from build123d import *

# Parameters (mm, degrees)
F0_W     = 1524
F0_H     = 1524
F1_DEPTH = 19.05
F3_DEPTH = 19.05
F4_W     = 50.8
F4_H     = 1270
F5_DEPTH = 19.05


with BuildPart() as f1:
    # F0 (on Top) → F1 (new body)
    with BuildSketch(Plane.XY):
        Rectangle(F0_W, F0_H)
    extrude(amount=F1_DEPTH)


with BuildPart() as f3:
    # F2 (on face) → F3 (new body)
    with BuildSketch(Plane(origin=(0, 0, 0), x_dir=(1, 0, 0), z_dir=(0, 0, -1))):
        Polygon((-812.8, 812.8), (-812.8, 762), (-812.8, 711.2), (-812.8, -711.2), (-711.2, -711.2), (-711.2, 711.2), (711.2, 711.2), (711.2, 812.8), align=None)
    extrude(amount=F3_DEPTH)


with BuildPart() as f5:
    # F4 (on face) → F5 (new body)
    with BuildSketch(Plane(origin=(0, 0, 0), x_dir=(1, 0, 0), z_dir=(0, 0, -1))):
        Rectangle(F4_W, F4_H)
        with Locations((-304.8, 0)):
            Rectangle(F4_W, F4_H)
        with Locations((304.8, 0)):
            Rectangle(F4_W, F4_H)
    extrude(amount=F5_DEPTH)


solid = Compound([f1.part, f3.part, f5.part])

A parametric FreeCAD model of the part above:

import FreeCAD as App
import Part
import Sketcher

V = App.Vector
Q = App.Units.Quantity


def add_polygon(sketch, points):
    """Adds a closed chain of lines whose ends are joined by coincident constraints."""
    first, n = sketch.GeometryCount, len(points)
    for a, b in zip(points, points[1:] + points[:1]):
        sketch.addGeometry(Part.LineSegment(App.Vector(*a, 0), App.Vector(*b, 0)), False)
    for i in range(n):
        sketch.addConstraint(Sketcher.Constraint("Coincident", first + i, 2, first + (i + 1) % n, 1))

doc = App.newDocument("Part")
params = doc.addObject("Spreadsheet::Sheet", "Params")
for row, (alias, value) in enumerate([
    ("sketch1_width", "60 in"),
    ("pad1_length", "0.75 in"),
    ("sketch2_width", "4 in"),
    ("sketch2_width2", "56 in"),
    ("pad2_length", "0.75 in"),
    ("sketch3_width", "2 in"),
    ("sketch3_height", "50 in"),
    ("pad3_length", "0.75 in"),
], start=1):
    params.set(f"A{row}", alias)
    params.set(f"B{row}", "=" + value)
    params.setAlias(f"B{row}", alias)

body = doc.addObject("PartDesign::Body", "Body")

sketch1 = doc.addObject("Sketcher::SketchObject", "Sketch")
body.addObject(sketch1)
sketch1.AttachmentSupport = (doc.XY_Plane, [""])
sketch1.MapMode = "FlatFace"
add_polygon(sketch1, [(-762, 762), (-762, -762), (762, -762), (762, 762)])
sketch1.addConstraint(Sketcher.Constraint("Vertical", 0))
sketch1.addConstraint(Sketcher.Constraint("Horizontal", 1))
sketch1.addConstraint(Sketcher.Constraint("Vertical", 2))
sketch1.addConstraint(Sketcher.Constraint("Horizontal", 3))
sketch1.addConstraint(Sketcher.Constraint("Symmetric", 0, 2, 2, 2, -1, 1))
sketch1.addConstraint(Sketcher.Constraint("Equal", 3, 0))
sketch1.addConstraint(Sketcher.Constraint("DistanceX", 1, 1, 1, 2, Q("60 in")))
sketch1.setExpression("Constraints[10]", "Params.sketch1_width")
pad1 = doc.addObject("PartDesign::Pad", "Pad")
body.addObject(pad1)
pad1.Profile = sketch1
pad1.setExpression("Length", "Params.pad1_length")
body2 = doc.addObject("PartDesign::Body", "Body001")

sketch2 = doc.addObject("Sketcher::SketchObject", "Sketch001")
body2.addObject(sketch2)
sketch2.AttachmentSupport = (doc.getObject("XY_Plane001"), [""])
sketch2.MapMode = "FlatFace"
add_polygon(sketch2, [(-813, -813), (-813, 711), (-711, 711), (-711, -711), (711, -711), (711, -813)])
sketch2.addConstraint(Sketcher.Constraint("Vertical", 0))
sketch2.addConstraint(Sketcher.Constraint("Horizontal", 1))
sketch2.addConstraint(Sketcher.Constraint("Vertical", 2))
sketch2.addConstraint(Sketcher.Constraint("Horizontal", 3))
sketch2.addConstraint(Sketcher.Constraint("Vertical", 4))
sketch2.addConstraint(Sketcher.Constraint("Horizontal", 5))
sketch2.addConstraint(Sketcher.Constraint("Symmetric", 1, 2, 3, 2, -1, 1))
sketch2.addConstraint(Sketcher.Constraint("Equal", 5, 0))
sketch2.addConstraint(Sketcher.Constraint("Equal", 3, 2))
sketch2.addConstraint(Sketcher.Constraint("DistanceX", 1, 1, 1, 2, Q("4 in")))
sketch2.addConstraint(Sketcher.Constraint("DistanceX", 3, 1, 3, 2, Q("56 in")))
sketch2.setExpression("Constraints[15]", "Params.sketch2_width")
sketch2.setExpression("Constraints[16]", "Params.sketch2_width2")
pad2 = doc.addObject("PartDesign::Pad", "Pad001")
body2.addObject(pad2)
pad2.Profile = sketch2
pad2.setExpression("Length", "Params.pad2_length")
pad2.Reversed = True
body3 = doc.addObject("PartDesign::Body", "Body002")
body3.AllowCompound = True

sketch3 = doc.addObject("Sketcher::SketchObject", "Sketch002")
body3.addObject(sketch3)
sketch3.AttachmentSupport = (doc.getObject("XY_Plane002"), [""])
sketch3.MapMode = "FlatFace"
add_polygon(sketch3, [(-25, -635), (-25, 635), (25, 635), (25, -635)])
add_polygon(sketch3, [(-330, -635), (-330, 635), (-279, 635), (-279, -635)])
add_polygon(sketch3, [(279, -635), (279, 635), (330, 635), (330, -635)])
sketch3.addConstraint(Sketcher.Constraint("Vertical", 0))
sketch3.addConstraint(Sketcher.Constraint("Horizontal", 1))
sketch3.addConstraint(Sketcher.Constraint("Vertical", 2))
sketch3.addConstraint(Sketcher.Constraint("Horizontal", 3))
sketch3.addConstraint(Sketcher.Constraint("Vertical", 4))
sketch3.addConstraint(Sketcher.Constraint("Horizontal", 5))
sketch3.addConstraint(Sketcher.Constraint("Vertical", 6))
sketch3.addConstraint(Sketcher.Constraint("Horizontal", 7))
sketch3.addConstraint(Sketcher.Constraint("Vertical", 8))
sketch3.addConstraint(Sketcher.Constraint("Horizontal", 9))
sketch3.addConstraint(Sketcher.Constraint("Vertical", 10))
sketch3.addConstraint(Sketcher.Constraint("Horizontal", 11))
sketch3.addConstraint(Sketcher.Constraint("Symmetric", 0, 2, 2, 2, -1, 1))
sketch3.addConstraint(Sketcher.Constraint("Symmetric", 6, 2, 8, 2, -1, 1))
sketch3.addConstraint(Sketcher.Constraint("Symmetric", 4, 2, 10, 2, -1, 1))
sketch3.addConstraint(Sketcher.Constraint("Horizontal", 1, 2, 4, 2))
sketch3.addConstraint(Sketcher.Constraint("Horizontal", 3, 2, 6, 2))
sketch3.addConstraint(Sketcher.Constraint("Equal", 3, 5))
sketch3.addConstraint(Sketcher.Constraint("DistanceX", 1, 1, 1, 2, Q("2 in")))
sketch3.addConstraint(Sketcher.Constraint("DistanceY", 0, 1, 0, 2, Q("50 in")))
sketch3.addConstraint(Sketcher.Constraint("DistanceX", 4, 2, -1, 1, Q("13 in")))
sketch3.setExpression("Constraints[30]", "Params.sketch3_width")
sketch3.setExpression("Constraints[31]", "Params.sketch3_height")
pad3 = doc.addObject("PartDesign::Pad", "Pad002")
body3.addObject(pad3)
pad3.Profile = sketch3
pad3.setExpression("Length", "Params.pad3_length")
pad3.Reversed = True

doc.recompute()
